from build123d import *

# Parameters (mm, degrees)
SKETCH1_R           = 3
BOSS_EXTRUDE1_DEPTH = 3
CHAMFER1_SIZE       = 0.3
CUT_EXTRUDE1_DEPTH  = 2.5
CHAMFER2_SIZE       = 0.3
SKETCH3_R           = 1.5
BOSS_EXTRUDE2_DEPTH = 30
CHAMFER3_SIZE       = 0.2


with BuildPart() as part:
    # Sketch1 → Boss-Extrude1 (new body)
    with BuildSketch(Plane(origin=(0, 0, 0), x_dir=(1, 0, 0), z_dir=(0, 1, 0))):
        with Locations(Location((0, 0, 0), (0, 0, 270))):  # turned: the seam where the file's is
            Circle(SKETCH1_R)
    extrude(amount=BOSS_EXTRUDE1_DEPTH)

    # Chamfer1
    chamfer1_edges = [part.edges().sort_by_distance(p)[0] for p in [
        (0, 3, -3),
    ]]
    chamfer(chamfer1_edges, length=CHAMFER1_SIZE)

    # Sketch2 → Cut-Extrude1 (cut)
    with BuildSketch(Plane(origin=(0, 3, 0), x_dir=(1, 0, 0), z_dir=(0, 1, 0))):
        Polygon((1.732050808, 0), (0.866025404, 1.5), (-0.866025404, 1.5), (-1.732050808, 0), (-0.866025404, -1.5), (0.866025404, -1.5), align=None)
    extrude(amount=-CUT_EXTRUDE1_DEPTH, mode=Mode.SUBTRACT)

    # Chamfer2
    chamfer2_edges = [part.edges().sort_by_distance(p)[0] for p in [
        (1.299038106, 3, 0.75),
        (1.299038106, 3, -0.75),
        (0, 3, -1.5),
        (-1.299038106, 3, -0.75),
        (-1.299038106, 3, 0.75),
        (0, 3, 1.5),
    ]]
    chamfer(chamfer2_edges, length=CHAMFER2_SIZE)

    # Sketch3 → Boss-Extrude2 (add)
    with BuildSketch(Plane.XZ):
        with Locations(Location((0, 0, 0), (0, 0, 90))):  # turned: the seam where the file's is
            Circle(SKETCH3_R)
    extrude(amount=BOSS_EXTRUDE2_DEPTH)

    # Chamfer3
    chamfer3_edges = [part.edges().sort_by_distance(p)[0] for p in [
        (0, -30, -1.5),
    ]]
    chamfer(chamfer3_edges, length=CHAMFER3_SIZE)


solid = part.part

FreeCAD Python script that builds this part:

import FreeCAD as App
import Part
import Sketcher
Q = App.Units.Quantity


def edges_at(feature, points):
    """Names of the edges that pass closest to the given points."""
    edges = feature.Shape.Edges
    near = lambda p: min(range(len(edges)), key=lambda i: edges[i].distToShape(Part.Vertex(*p))[0])
    return sorted({f"Edge{near(p) + 1}" for p in points})

doc = App.newDocument("Part")
body = doc.addObject("PartDesign::Body", "Body")

# Sketch on XZ plane
sketch1 = body.newObject("Sketcher::SketchObject", "Sketch")
sketch1.AttachmentSupport = (doc.getObject("XZ_Plane"), [""])
sketch1.MapMode = "FlatFace"
sketch1.addGeometry(Part.Circle(App.Vector(0, 0, 0), App.Vector(0, 0, 1), 3), False)
sketch1.addConstraint(Sketcher.Constraint("Coincident", 0, 3, -1, 1))
sketch1.addConstraint(Sketcher.Constraint("Diameter", 0, Q("6 mm")))
pad1 = body.newObject("PartDesign::Pad", "Pad")
pad1.Profile = sketch1
pad1.Length = 3
pad1.Reversed = True
doc.recompute()

chamfer = body.newObject("PartDesign::Chamfer", "Chamfer")
chamfer.Base = (pad1, edges_at(pad1, [(0, 3, -3)]))
chamfer.Size = 0.3

# Sketch on XZ plane
sketch2 = body.newObject("Sketcher::SketchObject", "Sketch001")
sketch2.AttachmentSupport = (doc.getObject("XZ_Plane"), [""])
sketch2.MapMode = "FlatFace"
sketch2.AttachmentOffset = App.Placement(App.Vector(0, 0, -3), App.Rotation())
sketch2.addGeometry(Part.LineSegment(App.Vector(1.7, 0, 0), App.Vector(0.9, -1.5, 0)), False)
sketch2.addGeometry(Part.LineSegment(App.Vector(0.9, -1.5, 0), App.Vector(-0.9, -1.5, 0)), False)
sketch2.addGeometry(Part.LineSegment(App.Vector(-0.9, -1.5, 0), App.Vector(-1.7, 0, 0)), False)
sketch2.addGeometry(Part.LineSegment(App.Vector(-1.7, 0, 0), App.Vector(-0.9, 1.5, 0)), False)
sketch2.addGeometry(Part.LineSegment(App.Vector(-0.9, 1.5, 0), App.Vector(0.9, 1.5, 0)), False)
sketch2.addGeometry(Part.LineSegment(App.Vector(0.9, 1.5, 0), App.Vector(1.7, 0, 0)), False)
sketch2.addConstraint(Sketcher.Constraint("Coincident", 0, 2, 1, 1))
sketch2.addConstraint(Sketcher.Constraint("Coincident", 1, 2, 2, 1))
sketch2.addConstraint(Sketcher.Constraint("Coincident", 2, 2, 3, 1))
sketch2.addConstraint(Sketcher.Constraint("Coincident", 3, 2, 4, 1))
sketch2.addConstraint(Sketcher.Constraint("Coincident", 4, 2, 5, 1))
sketch2.addConstraint(Sketcher.Constraint("Coincident", 5, 2, 0, 1))
sketch2.addConstraint(Sketcher.Constraint("Horizontal", 1))
sketch2.addConstraint(Sketcher.Constraint("Horizontal", 4))
sketch2.addConstraint(Sketcher.Constraint("Symmetric", 0, 2, 3, 2, -1, 1))
sketch2.addConstraint(Sketcher.Constraint("Symmetric", 2, 2, 5, 2, -1, 1))
sketch2.addConstraint(Sketcher.Constraint("PointOnObject", 2, 2, -1))
sketch2.addConstraint(Sketcher.Constraint("Parallel", 2, 5))
sketch2.addConstraint(Sketcher.Constraint("Vertical", 1, 2, 3, 2))
sketch2.addConstraint(Sketcher.Constraint("Angle", 0, Q("-120 deg")))
sketch2.addConstraint(Sketcher.Constraint("DistanceY", 1, 2, 3, 2, Q("3 mm")))
sketch2.addConstraint(Sketcher.Constraint("DistanceX", 1, 2, 1, 1, Q("1.732051 mm")))
pocket1 = body.newObject("PartDesign::Pocket", "Pocket")
pocket1.Profile = sketch2
pocket1.Length = 2.5
pocket1.Reversed = True
doc.recompute()

chamfer2 = body.newObject("PartDesign::Chamfer", "Chamfer001")
chamfer2.Base = (pocket1, edges_at(pocket1, [
    (1.299, 3, 0.75),
    (1.299, 3, -0.75),
    (0, 3, -1.5),
    (-1.299, 3, -0.75),
    (-1.299, 3, 0.75),
    (0, 3, 1.5),
]))
chamfer2.Size = 0.3

# Sketch on XZ plane
sketch3 = body.newObject("Sketcher::SketchObject", "Sketch002")
sketch3.AttachmentSupport = (doc.getObject("XZ_Plane"), [""])
sketch3.MapMode = "FlatFace"
sketch3.addGeometry(Part.Circle(App.Vector(0, 0, 0), App.Vector(0, 0, 1), 1.5), False)
sketch3.addConstraint(Sketcher.Constraint("Coincident", 0, 3, -1, 1))
sketch3.addConstraint(Sketcher.Constraint("Diameter", 0, Q("3 mm")))
pad2 = body.newObject("PartDesign::Pad", "Pad001")
pad2.Profile = sketch3
pad2.Length = 30
doc.recompute()

chamfer3 = body.newObject("PartDesign::Chamfer", "Chamfer002")
chamfer3.Base = (pad2, edges_at(pad2, [(0, -30, -1.5)]))
chamfer3.Size = 0.2

doc.recompute()
